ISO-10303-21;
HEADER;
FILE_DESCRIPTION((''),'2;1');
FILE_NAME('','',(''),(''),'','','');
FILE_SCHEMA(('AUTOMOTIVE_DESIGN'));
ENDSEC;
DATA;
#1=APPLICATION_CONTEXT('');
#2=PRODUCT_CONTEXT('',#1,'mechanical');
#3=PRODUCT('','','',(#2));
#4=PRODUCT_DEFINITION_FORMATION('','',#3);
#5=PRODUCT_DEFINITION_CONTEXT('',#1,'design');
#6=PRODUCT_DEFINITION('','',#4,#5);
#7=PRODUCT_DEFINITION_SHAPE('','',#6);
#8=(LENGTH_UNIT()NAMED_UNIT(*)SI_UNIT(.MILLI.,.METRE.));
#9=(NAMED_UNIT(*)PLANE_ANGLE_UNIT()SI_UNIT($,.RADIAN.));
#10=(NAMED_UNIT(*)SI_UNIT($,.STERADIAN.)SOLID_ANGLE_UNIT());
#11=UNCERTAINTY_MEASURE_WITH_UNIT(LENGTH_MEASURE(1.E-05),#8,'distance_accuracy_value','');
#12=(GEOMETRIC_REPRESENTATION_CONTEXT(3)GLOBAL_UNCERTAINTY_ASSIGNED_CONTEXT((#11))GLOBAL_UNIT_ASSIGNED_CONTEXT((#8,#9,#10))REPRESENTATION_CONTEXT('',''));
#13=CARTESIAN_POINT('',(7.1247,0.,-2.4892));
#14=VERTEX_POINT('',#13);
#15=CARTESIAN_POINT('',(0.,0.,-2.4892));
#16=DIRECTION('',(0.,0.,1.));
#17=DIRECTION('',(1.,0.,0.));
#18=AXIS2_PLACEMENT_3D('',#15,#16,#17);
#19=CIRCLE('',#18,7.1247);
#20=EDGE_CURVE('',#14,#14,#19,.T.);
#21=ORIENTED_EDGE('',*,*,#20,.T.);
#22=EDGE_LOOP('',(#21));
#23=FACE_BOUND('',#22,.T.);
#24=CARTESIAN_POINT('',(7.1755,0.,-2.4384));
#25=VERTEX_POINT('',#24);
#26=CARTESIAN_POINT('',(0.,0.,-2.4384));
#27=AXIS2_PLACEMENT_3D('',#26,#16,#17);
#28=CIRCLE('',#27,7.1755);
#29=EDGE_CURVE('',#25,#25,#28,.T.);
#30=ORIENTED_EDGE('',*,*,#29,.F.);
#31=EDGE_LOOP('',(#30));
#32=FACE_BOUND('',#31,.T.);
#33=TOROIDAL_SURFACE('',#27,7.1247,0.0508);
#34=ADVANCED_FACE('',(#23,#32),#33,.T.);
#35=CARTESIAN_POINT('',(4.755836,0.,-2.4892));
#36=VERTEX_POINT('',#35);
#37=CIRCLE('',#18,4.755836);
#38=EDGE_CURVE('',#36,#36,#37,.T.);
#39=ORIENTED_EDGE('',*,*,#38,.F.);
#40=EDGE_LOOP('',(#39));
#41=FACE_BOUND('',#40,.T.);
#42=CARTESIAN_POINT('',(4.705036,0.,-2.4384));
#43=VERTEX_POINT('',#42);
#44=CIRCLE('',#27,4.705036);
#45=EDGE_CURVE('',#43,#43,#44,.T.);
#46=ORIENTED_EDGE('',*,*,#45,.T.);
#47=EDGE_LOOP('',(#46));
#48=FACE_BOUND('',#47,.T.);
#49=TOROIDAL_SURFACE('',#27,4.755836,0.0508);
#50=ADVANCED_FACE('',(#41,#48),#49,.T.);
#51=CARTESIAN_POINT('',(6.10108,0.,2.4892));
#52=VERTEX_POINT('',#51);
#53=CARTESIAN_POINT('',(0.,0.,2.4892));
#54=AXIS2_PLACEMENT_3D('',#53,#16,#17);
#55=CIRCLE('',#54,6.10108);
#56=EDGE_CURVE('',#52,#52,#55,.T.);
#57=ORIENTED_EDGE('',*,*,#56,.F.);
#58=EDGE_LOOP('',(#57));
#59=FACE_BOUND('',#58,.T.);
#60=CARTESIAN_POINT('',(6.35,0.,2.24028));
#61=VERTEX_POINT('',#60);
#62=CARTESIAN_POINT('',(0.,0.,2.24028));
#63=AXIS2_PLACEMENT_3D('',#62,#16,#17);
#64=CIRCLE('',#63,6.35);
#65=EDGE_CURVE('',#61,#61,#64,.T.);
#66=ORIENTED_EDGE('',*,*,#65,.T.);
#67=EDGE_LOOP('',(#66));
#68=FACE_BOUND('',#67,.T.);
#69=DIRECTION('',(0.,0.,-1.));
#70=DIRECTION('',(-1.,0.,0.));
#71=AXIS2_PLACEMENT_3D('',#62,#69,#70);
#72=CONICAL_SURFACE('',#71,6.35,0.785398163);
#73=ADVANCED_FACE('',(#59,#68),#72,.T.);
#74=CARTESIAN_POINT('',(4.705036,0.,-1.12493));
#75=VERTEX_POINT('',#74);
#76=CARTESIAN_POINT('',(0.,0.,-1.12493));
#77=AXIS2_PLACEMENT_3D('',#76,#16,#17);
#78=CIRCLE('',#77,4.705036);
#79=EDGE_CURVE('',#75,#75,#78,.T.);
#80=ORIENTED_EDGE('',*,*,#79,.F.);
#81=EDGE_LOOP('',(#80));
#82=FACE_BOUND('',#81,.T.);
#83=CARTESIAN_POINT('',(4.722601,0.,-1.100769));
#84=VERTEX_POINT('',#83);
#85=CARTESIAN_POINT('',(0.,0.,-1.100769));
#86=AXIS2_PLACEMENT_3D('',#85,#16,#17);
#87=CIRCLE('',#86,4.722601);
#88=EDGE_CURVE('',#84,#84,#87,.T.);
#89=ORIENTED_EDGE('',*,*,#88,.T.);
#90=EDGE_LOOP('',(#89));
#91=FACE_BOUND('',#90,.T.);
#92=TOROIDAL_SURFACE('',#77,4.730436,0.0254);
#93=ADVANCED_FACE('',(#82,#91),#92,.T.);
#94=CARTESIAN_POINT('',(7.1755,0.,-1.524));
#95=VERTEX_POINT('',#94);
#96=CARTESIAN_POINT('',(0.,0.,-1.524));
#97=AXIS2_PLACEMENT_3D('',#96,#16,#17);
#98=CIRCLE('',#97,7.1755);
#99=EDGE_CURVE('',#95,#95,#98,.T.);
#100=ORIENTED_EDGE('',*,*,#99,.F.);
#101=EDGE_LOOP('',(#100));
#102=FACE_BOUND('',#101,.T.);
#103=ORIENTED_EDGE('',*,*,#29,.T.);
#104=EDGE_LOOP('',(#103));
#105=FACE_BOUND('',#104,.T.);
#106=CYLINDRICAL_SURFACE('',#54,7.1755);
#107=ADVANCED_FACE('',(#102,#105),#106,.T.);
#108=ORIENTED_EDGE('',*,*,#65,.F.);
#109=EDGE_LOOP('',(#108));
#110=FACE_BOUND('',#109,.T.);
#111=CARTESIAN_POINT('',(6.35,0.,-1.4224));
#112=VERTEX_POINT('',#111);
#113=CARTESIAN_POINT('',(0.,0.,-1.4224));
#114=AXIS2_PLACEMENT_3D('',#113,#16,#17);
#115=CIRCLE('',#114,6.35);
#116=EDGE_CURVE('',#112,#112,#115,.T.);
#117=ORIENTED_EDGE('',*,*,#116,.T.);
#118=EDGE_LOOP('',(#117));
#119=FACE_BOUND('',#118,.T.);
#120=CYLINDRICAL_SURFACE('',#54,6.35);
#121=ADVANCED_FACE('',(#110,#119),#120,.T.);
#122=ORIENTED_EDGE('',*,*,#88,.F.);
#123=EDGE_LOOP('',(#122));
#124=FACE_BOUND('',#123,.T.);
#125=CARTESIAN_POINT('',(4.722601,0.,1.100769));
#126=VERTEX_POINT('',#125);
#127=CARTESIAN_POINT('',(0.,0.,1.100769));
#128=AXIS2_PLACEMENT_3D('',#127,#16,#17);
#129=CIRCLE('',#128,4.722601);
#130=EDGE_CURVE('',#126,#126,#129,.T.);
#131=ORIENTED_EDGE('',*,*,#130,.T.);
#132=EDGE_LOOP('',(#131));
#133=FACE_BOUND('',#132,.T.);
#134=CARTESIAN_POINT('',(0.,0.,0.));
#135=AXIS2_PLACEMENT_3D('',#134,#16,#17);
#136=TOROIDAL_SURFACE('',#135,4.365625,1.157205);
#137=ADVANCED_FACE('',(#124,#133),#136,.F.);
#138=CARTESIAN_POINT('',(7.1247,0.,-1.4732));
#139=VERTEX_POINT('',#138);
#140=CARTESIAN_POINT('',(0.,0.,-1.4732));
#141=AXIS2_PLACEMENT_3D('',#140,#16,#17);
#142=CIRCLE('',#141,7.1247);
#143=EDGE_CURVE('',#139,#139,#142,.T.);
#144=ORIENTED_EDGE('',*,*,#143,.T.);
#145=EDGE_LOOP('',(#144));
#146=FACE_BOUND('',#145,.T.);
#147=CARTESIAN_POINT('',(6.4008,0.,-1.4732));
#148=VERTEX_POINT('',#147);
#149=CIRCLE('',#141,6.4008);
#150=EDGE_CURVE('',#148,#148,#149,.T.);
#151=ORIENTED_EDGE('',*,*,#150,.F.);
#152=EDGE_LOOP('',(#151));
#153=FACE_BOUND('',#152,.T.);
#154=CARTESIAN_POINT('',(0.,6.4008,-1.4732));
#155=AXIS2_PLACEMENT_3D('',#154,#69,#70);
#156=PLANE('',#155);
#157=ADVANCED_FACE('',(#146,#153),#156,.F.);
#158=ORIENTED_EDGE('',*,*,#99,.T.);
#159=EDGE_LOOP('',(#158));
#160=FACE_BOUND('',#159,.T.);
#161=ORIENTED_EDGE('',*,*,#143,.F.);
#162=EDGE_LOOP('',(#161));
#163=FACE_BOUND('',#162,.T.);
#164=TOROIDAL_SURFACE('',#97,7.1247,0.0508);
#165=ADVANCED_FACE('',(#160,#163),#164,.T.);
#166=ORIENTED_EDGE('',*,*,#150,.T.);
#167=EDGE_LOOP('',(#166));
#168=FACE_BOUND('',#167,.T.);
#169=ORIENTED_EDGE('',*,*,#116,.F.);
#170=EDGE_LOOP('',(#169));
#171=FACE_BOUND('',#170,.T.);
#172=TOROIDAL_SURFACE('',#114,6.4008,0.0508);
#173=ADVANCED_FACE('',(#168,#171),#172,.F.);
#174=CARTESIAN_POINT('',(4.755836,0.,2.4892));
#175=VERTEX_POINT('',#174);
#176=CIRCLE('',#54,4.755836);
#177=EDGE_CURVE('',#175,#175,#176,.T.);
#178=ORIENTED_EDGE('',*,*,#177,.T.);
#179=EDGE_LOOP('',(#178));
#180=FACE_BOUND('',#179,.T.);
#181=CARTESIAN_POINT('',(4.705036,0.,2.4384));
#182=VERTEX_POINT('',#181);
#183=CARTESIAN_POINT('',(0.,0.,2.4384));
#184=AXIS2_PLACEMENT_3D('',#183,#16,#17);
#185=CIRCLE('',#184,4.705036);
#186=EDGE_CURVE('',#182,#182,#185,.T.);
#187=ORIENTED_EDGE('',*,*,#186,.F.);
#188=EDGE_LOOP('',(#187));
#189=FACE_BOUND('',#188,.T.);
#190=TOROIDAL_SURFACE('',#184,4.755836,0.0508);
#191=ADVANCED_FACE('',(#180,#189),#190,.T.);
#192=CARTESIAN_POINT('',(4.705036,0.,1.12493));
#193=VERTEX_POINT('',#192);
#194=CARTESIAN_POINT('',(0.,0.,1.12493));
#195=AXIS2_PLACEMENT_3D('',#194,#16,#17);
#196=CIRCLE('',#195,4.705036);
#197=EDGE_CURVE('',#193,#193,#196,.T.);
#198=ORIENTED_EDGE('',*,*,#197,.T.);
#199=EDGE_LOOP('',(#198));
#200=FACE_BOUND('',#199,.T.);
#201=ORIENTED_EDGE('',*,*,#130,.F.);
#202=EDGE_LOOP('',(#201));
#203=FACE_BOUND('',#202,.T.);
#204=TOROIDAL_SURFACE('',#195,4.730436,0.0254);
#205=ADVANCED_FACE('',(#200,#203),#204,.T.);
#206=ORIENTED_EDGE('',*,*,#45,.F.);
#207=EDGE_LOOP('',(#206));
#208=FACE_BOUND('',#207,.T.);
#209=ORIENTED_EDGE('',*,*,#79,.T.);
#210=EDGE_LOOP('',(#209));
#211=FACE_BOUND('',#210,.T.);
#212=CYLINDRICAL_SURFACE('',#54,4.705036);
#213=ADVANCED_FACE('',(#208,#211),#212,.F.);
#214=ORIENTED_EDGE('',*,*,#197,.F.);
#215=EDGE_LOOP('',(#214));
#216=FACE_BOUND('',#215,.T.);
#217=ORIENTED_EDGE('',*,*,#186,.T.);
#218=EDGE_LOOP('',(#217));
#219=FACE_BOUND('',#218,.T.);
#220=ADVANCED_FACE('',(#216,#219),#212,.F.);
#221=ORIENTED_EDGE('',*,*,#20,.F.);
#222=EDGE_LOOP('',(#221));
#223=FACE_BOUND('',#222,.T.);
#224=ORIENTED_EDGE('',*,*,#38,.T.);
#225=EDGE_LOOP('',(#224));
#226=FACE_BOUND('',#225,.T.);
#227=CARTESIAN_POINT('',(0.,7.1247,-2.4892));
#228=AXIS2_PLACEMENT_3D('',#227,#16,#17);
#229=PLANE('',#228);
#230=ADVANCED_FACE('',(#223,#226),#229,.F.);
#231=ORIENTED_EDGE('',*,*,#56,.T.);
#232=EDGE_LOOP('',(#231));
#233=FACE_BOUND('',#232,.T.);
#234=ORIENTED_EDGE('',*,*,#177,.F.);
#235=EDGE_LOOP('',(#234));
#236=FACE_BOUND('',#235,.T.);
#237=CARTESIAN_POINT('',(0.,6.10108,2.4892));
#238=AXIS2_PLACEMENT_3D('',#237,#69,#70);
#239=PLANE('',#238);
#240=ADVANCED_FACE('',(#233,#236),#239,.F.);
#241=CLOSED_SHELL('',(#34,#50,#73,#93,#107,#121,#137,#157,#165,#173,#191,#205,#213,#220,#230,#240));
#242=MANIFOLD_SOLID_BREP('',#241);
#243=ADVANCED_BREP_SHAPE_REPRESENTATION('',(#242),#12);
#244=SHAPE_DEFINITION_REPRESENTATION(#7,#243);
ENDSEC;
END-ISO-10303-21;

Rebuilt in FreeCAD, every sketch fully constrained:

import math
import FreeCAD as App
import Part
import Sketcher
Q = App.Units.Quantity

doc = App.newDocument("Part")
body = doc.addObject("PartDesign::Body", "Body")

# Sketch on YZ plane
sketch1 = body.newObject("Sketcher::SketchObject", "Sketch")
sketch1.AttachmentSupport = (doc.getObject("YZ_Plane"), [""])
sketch1.MapMode = "FlatFace"
sketch1.addGeometry(Part.LineSegment(App.Vector(6.35, -1.422, 0), App.Vector(6.35, 2.24, 0)), False)
sketch1.addGeometry(Part.LineSegment(App.Vector(6.35, 2.24, 0), App.Vector(6.101, 2.489, 0)), False)
sketch1.addGeometry(Part.LineSegment(App.Vector(6.101, 2.489, 0), App.Vector(4.756, 2.489, 0)), False)
sketch1.addGeometry(Part.ArcOfCircle(Part.Circle(App.Vector(4.756, 2.438, 0), App.Vector(0, 0, 1), 0.051), math.radians(90), math.radians(180)), False)
sketch1.addGeometry(Part.LineSegment(App.Vector(4.705, 2.438, 0), App.Vector(4.705, 1.125, 0)), False)
sketch1.addGeometry(Part.ArcOfCircle(Part.Circle(App.Vector(4.73, 1.125, 0), App.Vector(0, 0, 1), 0.025), math.radians(-180), math.radians(-108)), False)
sketch1.addGeometry(Part.ArcOfCircle(Part.Circle(App.Vector(4.366, 0, 0), App.Vector(0, 0, 1), 1.157), math.radians(-72), math.radians(72)), False)
sketch1.addGeometry(Part.ArcOfCircle(Part.Circle(App.Vector(4.73, -1.125, 0), App.Vector(0, 0, 1), 0.025), math.radians(108), math.radians(180)), False)
sketch1.addGeometry(Part.LineSegment(App.Vector(4.705, -1.125, 0), App.Vector(4.705, -2.438, 0)), False)
sketch1.addGeometry(Part.ArcOfCircle(Part.Circle(App.Vector(4.756, -2.438, 0), App.Vector(0, 0, 1), 0.051), math.radians(-180), math.radians(-90)), False)
sketch1.addGeometry(Part.LineSegment(App.Vector(4.756, -2.489, 0), App.Vector(7.125, -2.489, 0)), False)
sketch1.addGeometry(Part.ArcOfCircle(Part.Circle(App.Vector(7.125, -2.438, 0), App.Vector(0, 0, 1), 0.051), math.radians(-90), math.radians(0)), False)
sketch1.addGeometry(Part.LineSegment(App.Vector(7.176, -2.438, 0), App.Vector(7.176, -1.524, 0)), False)
sketch1.addGeometry(Part.ArcOfCircle(Part.Circle(App.Vector(7.125, -1.524, 0), App.Vector(0, 0, 1), 0.051), math.radians(0), math.radians(90)), False)
sketch1.addGeometry(Part.LineSegment(App.Vector(7.125, -1.473, 0), App.Vector(6.401, -1.473, 0)), False)
sketch1.addGeometry(Part.ArcOfCircle(Part.Circle(App.Vector(6.401, -1.422, 0), App.Vector(0, 0, 1), 0.051), math.radians(-180), math.radians(-90)), False)
sketch1.addConstraint(Sketcher.Constraint("Coincident", 0, 2, 1, 1))
sketch1.addConstraint(Sketcher.Constraint("Coincident", 1, 2, 2, 1))
sketch1.addConstraint(Sketcher.Constraint("Tangent", 2, 2, 3, 1))
sketch1.addConstraint(Sketcher.Constraint("Tangent", 3, 2, 4, 1))
sketch1.addConstraint(Sketcher.Constraint("Tangent", 4, 2, 5, 1))
sketch1.addConstraint(Sketcher.Constraint("Tangent", 5, 2, 6, 2))
sketch1.addConstraint(Sketcher.Constraint("Tangent", 6, 1, 7, 1))
sketch1.addConstraint(Sketcher.Constraint("Tangent", 7, 2, 8, 1))
sketch1.addConstraint(Sketcher.Constraint("Tangent", 8, 2, 9, 1))
sketch1.addConstraint(Sketcher.Constraint("Tangent", 9, 2, 10, 1))
sketch1.addConstraint(Sketcher.Constraint("Tangent", 10, 2, 11, 1))
sketch1.addConstraint(Sketcher.Constraint("Tangent", 11, 2, 12, 1))
sketch1.addConstraint(Sketcher.Constraint("Tangent", 12, 2, 13, 1))
sketch1.addConstraint(Sketcher.Constraint("Tangent", 13, 2, 14, 1))
sketch1.addConstraint(Sketcher.Constraint("Tangent", 14, 2, 15, 2))
sketch1.addConstraint(Sketcher.Constraint("Tangent", 15, 1, 0, 1))
sketch1.addConstraint(Sketcher.Constraint("Vertical", 0))
sketch1.addConstraint(Sketcher.Constraint("Horizontal", 2))
sketch1.addConstraint(Sketcher.Constraint("Vertical", 4))
sketch1.addConstraint(Sketcher.Constraint("Vertical", 8))
sketch1.addConstraint(Sketcher.Constraint("Horizontal", 10))
sketch1.addConstraint(Sketcher.Constraint("Vertical", 12))
sketch1.addConstraint(Sketcher.Constraint("Horizontal", 14))
sketch1.addConstraint(Sketcher.Constraint("Equal", 5, 7))
sketch1.addConstraint(Sketcher.Constraint("Equal", 3, 9))
sketch1.addConstraint(Sketcher.Constraint("Equal", 9, 11))
sketch1.addConstraint(Sketcher.Constraint("Equal", 11, 13))
sketch1.addConstraint(Sketcher.Constraint("Equal", 13, 15))
sketch1.addConstraint(Sketcher.Constraint("Symmetric", 5, 3, 7, 3, -1))
sketch1.addConstraint(Sketcher.Constraint("Equal", 4, 8))
sketch1.addConstraint(Sketcher.Constraint("Angle", 1, Q("135 deg")))
sketch1.addConstraint(Sketcher.Constraint("Radius", 3, Q("0.002 in")))
sketch1.addConstraint(Sketcher.Constraint("Radius", 5, Q("0.001 in")))
sketch1.addConstraint(Sketcher.Constraint("DistanceY", 12, 1, 12, 2, Q("0.036 in")))
sketch1.addConstraint(Sketcher.Constraint("DistanceY", 13, 3, -1, 1, Q("0.06 in")))
sketch1.addConstraint(Sketcher.Constraint("DistanceX", -1, 1, 0, 2, Q("0.25 in")))
sketch1.addConstraint(Sketcher.Constraint("DistanceX", 14, 2, 14, 1, Q("0.0285 in")))
sketch1.addConstraint(Sketcher.Constraint("DistanceY", 0, 1, 0, 2, Q("0.1442 in")))
sketch1.addConstraint(Sketcher.Constraint("DistanceX", -1, 1, 6, 3, Q("0.171875 in")))
sketch1.addConstraint(Sketcher.Constraint("Radius", 6, Q("1.157205 mm")))
sketch1.addConstraint(Sketcher.Constraint("DistanceY", 4, 2, 4, 1, Q("1.31347 mm")))
revolution = body.newObject("PartDesign::Revolution", "Revolution")
revolution.Profile = sketch1
revolution.ReferenceAxis = (sketch1, ["V_Axis"])
revolution.Angle = 360

doc.recompute()
